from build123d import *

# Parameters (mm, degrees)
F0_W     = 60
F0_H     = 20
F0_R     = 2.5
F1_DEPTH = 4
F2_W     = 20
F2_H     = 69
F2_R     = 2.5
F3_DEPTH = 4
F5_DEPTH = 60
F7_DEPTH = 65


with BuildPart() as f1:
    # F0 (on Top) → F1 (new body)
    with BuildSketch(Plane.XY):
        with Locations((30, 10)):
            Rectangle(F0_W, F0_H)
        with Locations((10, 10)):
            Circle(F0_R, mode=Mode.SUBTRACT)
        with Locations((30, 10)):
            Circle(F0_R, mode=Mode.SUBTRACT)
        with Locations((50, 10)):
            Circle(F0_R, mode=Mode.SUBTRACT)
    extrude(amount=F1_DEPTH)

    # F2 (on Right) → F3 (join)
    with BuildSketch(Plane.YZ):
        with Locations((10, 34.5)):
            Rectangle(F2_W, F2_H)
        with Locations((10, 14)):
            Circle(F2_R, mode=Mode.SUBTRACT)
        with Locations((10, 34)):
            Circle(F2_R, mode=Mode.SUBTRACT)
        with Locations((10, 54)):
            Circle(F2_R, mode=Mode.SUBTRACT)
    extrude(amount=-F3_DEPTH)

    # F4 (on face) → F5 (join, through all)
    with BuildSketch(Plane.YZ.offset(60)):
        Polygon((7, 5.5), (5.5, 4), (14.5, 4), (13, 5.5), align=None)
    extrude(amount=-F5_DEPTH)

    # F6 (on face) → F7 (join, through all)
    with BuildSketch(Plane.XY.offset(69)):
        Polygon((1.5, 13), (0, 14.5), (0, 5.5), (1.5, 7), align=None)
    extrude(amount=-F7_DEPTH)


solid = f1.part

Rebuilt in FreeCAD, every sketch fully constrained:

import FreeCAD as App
import Part
import Sketcher

V = App.Vector

doc = App.newDocument("Part")
body = doc.addObject("PartDesign::Body", "Body")

# Sketch on XY plane
sketch1 = body.newObject("Sketcher::SketchObject", "Sketch")
sketch1.AttachmentSupport = (doc.getObject("XY_Plane"), [""])
sketch1.MapMode = "FlatFace"
sketch1.addGeometry([
    Part.LineSegment(V(0, 20, 0), V(0, 0, 0)),  # 0
    Part.LineSegment(V(0, 0, 0), V(60, 0, 0)),  # 1
    Part.LineSegment(V(60, 0, 0), V(60, 20, 0)),  # 2
    Part.LineSegment(V(60, 20, 0), V(0, 20, 0)),  # 3
    Part.Circle(V(10, 10, 0), V(0, 0, 1), 2.5),  # 4
    Part.Circle(V(30, 10, 0), V(0, 0, 1), 2.5),  # 5
    Part.Circle(V(50, 10, 0), V(0, 0, 1), 2.5),  # 6
], False)
sketch1.addConstraint([
    Sketcher.Constraint("Coincident", 0, 2, 1, 1),
    Sketcher.Constraint("Coincident", 1, 2, 2, 1),
    Sketcher.Constraint("Coincident", 2, 2, 3, 1),
    Sketcher.Constraint("Coincident", 3, 2, 0, 1),
    Sketcher.Constraint("Vertical", 0),
    Sketcher.Constraint("Horizontal", 1),
    Sketcher.Constraint("Vertical", 2),
    Sketcher.Constraint("Horizontal", 3),
    Sketcher.Constraint("Coincident", 0, 2, -1, 1),
    Sketcher.Constraint("Equal", 4, 5),
    Sketcher.Constraint("Equal", 5, 6),
    Sketcher.Constraint("Horizontal", 4, 3, 5, 3),
    Sketcher.Constraint("Horizontal", 5, 3, 6, 3),
    Sketcher.Constraint("Diameter", 4, 5.0),
    Sketcher.Constraint("DistanceX", 1, 1, 1, 2, 60.0),
    Sketcher.Constraint("DistanceY", 0, 2, 0, 1, 20.0),
    Sketcher.Constraint("DistanceX", -1, 1, 4, 3, 10.0),
    Sketcher.Constraint("DistanceY", -1, 1, 4, 3, 10.0),
    Sketcher.Constraint("DistanceX", -1, 1, 5, 3, 30.0),
    Sketcher.Constraint("DistanceX", -1, 1, 6, 3, 50.0),
])
pad1 = body.newObject("PartDesign::Pad", "Pad")
pad1.Profile = sketch1
pad1.Length = 4

# Sketch on YZ plane
sketch2 = body.newObject("Sketcher::SketchObject", "Sketch001")
sketch2.AttachmentSupport = (doc.getObject("YZ_Plane"), [""])
sketch2.MapMode = "FlatFace"
sketch2.addGeometry([
    Part.LineSegment(V(0, 69, 0), V(0, 0, 0)),  # 0
    Part.LineSegment(V(0, 0, 0), V(20, 0, 0)),  # 1
    Part.LineSegment(V(20, 0, 0), V(20, 69, 0)),  # 2
    Part.LineSegment(V(20, 69, 0), V(0, 69, 0)),  # 3
    Part.Circle(V(10, 14, 0), V(0, 0, 1), 2.5),  # 4
    Part.Circle(V(10, 34, 0), V(0, 0, 1), 2.5),  # 5
    Part.Circle(V(10, 54, 0), V(0, 0, 1), 2.5),  # 6
], False)
sketch2.addConstraint([
    Sketcher.Constraint("Coincident", 0, 2, 1, 1),
    Sketcher.Constraint("Coincident", 1, 2, 2, 1),
    Sketcher.Constraint("Coincident", 2, 2, 3, 1),
    Sketcher.Constraint("Coincident", 3, 2, 0, 1),
    Sketcher.Constraint("Vertical", 0),
    Sketcher.Constraint("Horizontal", 1),
    Sketcher.Constraint("Vertical", 2),
    Sketcher.Constraint("Horizontal", 3),
    Sketcher.Constraint("Coincident", 0, 2, -1, 1),
    Sketcher.Constraint("Equal", 4, 5),
    Sketcher.Constraint("Equal", 5, 6),
    Sketcher.Constraint("Vertical", 4, 3, 5, 3),
    Sketcher.Constraint("Vertical", 5, 3, 6, 3),
    Sketcher.Constraint("Diameter", 4, 5.0),
    Sketcher.Constraint("DistanceX", 1, 1, 1, 2, 20.0),
    Sketcher.Constraint("DistanceY", 0, 2, 0, 1, 69.0),
    Sketcher.Constraint("DistanceX", -1, 1, 4, 3, 10.0),
    Sketcher.Constraint("DistanceY", -1, 1, 4, 3, 14.0),
    Sketcher.Constraint("DistanceY", -1, 1, 5, 3, 34.0),
    Sketcher.Constraint("DistanceY", -1, 1, 6, 3, 54.0),
])
pad2 = body.newObject("PartDesign::Pad", "Pad001")
pad2.Profile = sketch2
pad2.Length = 4
pad2.Reversed = True

# Sketch on YZ plane
sketch3 = body.newObject("Sketcher::SketchObject", "Sketch002")
sketch3.AttachmentSupport = (doc.getObject("YZ_Plane"), [""])
sketch3.MapMode = "FlatFace"
sketch3.AttachmentOffset = App.Placement(V(0, 0, 60), App.Rotation())
sketch3.addGeometry([
    Part.LineSegment(V(7, 5.5, 0), V(5.5, 4, 0)),
    Part.LineSegment(V(5.5, 4, 0), V(14.5, 4, 0)),
    Part.LineSegment(V(14.5, 4, 0), V(13, 5.5, 0)),
    Part.LineSegment(V(13, 5.5, 0), V(7, 5.5, 0)),
], False)
sketch3.addConstraint([
    Sketcher.Constraint("Coincident", 0, 2, 1, 1),
    Sketcher.Constraint("Coincident", 1, 2, 2, 1),
    Sketcher.Constraint("Coincident", 2, 2, 3, 1),
    Sketcher.Constraint("Coincident", 3, 2, 0, 1),
    Sketcher.Constraint("Horizontal", 1),
    Sketcher.Constraint("Horizontal", 3),
    Sketcher.Constraint("Perpendicular", 0, 2),
    Sketcher.Constraint("Equal", 0, 2),
    Sketcher.Constraint("DistanceX", 1, 1, 1, 2, 9.0),
    Sketcher.Constraint("DistanceX", 3, 2, 3, 1, 6.0),
    Sketcher.Constraint("DistanceY", -1, 1, 0, 2, 4.0),
    Sketcher.Constraint("DistanceX", -1, 1, 2, 2, 13.0),
])
pad3 = body.newObject("PartDesign::Pad", "Pad002")
pad3.Profile = sketch3
pad3.Type = "UpToLast"
pad3.Reversed = True

# Sketch on XY plane
sketch4 = body.newObject("Sketcher::SketchObject", "Sketch003")
sketch4.AttachmentSupport = (doc.getObject("XY_Plane"), [""])
sketch4.MapMode = "FlatFace"
sketch4.AttachmentOffset = App.Placement(V(0, 0, 69), App.Rotation())
sketch4.addGeometry([
    Part.LineSegment(V(1.5, 13, 0), V(0, 14.5, 0)),
    Part.LineSegment(V(0, 14.5, 0), V(0, 5.5, 0)),
    Part.LineSegment(V(0, 5.5, 0), V(1.5, 7, 0)),
    Part.LineSegment(V(1.5, 7, 0), V(1.5, 13, 0)),
], False)
sketch4.addConstraint([
    Sketcher.Constraint("Coincident", 0, 2, 1, 1),
    Sketcher.Constraint("Coincident", 1, 2, 2, 1),
    Sketcher.Constraint("Coincident", 2, 2, 3, 1),
    Sketcher.Constraint("Coincident", 3, 2, 0, 1),
    Sketcher.Constraint("Vertical", 1),
    Sketcher.Constraint("Vertical", 3),
    Sketcher.Constraint("PointOnObject", 0, 2, -2),
    Sketcher.Constraint("Perpendicular", 0, 2),
    Sketcher.Constraint("Equal", 0, 2),
    Sketcher.Constraint("DistanceY", 1, 2, 1, 1, 9.0),
    Sketcher.Constraint("DistanceY", 3, 1, 3, 2, 6.0),
    Sketcher.Constraint("DistanceY", -1, 1, 2, 2, 7.0),
])
pad4 = body.newObject("PartDesign::Pad", "Pad003")
pad4.Profile = sketch4
pad4.Type = "UpToLast"
pad4.Reversed = True

doc.recompute()
